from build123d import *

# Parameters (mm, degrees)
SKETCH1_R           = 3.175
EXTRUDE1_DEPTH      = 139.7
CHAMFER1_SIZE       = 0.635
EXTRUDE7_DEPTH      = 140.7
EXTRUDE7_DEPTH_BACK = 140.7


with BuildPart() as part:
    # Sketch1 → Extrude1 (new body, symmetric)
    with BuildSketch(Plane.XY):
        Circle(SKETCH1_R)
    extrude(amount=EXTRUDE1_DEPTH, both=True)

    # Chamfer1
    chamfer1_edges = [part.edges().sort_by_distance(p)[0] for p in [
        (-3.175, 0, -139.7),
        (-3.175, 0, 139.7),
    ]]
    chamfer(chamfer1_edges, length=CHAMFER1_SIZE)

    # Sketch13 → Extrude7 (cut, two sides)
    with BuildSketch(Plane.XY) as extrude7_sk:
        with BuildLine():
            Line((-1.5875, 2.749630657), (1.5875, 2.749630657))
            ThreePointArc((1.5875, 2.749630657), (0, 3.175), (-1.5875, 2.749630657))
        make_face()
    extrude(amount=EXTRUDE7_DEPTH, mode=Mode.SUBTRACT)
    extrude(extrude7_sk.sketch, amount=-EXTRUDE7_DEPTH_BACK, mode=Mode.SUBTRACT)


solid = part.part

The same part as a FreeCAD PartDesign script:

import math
import FreeCAD as App
import Part
import Sketcher

V = App.Vector
Q = App.Units.Quantity


def edges_at(feature, points):
    """Names of the edges that pass closest to the given points."""
    edges = feature.Shape.Edges
    near = lambda p: min(range(len(edges)), key=lambda i: edges[i].distToShape(Part.Vertex(*p))[0])
    return sorted({f"Edge{near(p) + 1}" for p in points})

doc = App.newDocument("Part")
body = doc.addObject("PartDesign::Body", "Body")

# Sketch on XY plane
sketch1 = body.newObject("Sketcher::SketchObject", "Sketch")
sketch1.AttachmentSupport = (doc.getObject("XY_Plane"), [""])
sketch1.MapMode = "FlatFace"
sketch1.addGeometry(Part.Circle(V(0, 0, 0), V(0, 0, 1), 3.2), False)
sketch1.addConstraint([
    Sketcher.Constraint("Coincident", 0, 3, -1, 1),
    Sketcher.Constraint("Diameter", 0, Q("0.25 in")),
])
pad1 = body.newObject("PartDesign::Pad", "Pad")
pad1.Profile = sketch1
pad1.Length = Q("11 in")
pad1.Midplane = True
doc.recompute()

chamfer = body.newObject("PartDesign::Chamfer", "Chamfer")
chamfer.Base = (pad1, edges_at(pad1, [(-3.175, 0, -139.7), (-3.175, 0, 139.7)]))
chamfer.Size = Q("0.025 in")

# Sketch on XY plane
sketch2 = body.newObject("Sketcher::SketchObject", "Sketch001")
sketch2.AttachmentSupport = (doc.getObject("XY_Plane"), [""])
sketch2.MapMode = "FlatFace"
sketch2.addGeometry([
    Part.LineSegment(V(-1.6, 2.7, 0), V(1.6, 2.7, 0)),
    Part.ArcOfCircle(Part.Circle(V(0, 0, 0), V(0, 0, 1), 3.2), math.radians(60), math.radians(120)),
], False)
sketch2.addConstraint([
    Sketcher.Constraint("Coincident", 0, 1, 1, 2),
    Sketcher.Constraint("Coincident", 1, 1, 0, 2),
    Sketcher.Constraint("Horizontal", 0),
    Sketcher.Constraint("Coincident", 1, 3, -1, 1),
    Sketcher.Constraint("Radius", 1, Q("0.125 in")),
    Sketcher.Constraint("DistanceX", 0, 1, 0, 2, Q("0.125 in")),
])
pocket1 = body.newObject("PartDesign::Pocket", "Pocket")
pocket1.Profile = sketch2
pocket1.Type = "ThroughAll"
pocket1.Midplane = True

doc.recompute()
